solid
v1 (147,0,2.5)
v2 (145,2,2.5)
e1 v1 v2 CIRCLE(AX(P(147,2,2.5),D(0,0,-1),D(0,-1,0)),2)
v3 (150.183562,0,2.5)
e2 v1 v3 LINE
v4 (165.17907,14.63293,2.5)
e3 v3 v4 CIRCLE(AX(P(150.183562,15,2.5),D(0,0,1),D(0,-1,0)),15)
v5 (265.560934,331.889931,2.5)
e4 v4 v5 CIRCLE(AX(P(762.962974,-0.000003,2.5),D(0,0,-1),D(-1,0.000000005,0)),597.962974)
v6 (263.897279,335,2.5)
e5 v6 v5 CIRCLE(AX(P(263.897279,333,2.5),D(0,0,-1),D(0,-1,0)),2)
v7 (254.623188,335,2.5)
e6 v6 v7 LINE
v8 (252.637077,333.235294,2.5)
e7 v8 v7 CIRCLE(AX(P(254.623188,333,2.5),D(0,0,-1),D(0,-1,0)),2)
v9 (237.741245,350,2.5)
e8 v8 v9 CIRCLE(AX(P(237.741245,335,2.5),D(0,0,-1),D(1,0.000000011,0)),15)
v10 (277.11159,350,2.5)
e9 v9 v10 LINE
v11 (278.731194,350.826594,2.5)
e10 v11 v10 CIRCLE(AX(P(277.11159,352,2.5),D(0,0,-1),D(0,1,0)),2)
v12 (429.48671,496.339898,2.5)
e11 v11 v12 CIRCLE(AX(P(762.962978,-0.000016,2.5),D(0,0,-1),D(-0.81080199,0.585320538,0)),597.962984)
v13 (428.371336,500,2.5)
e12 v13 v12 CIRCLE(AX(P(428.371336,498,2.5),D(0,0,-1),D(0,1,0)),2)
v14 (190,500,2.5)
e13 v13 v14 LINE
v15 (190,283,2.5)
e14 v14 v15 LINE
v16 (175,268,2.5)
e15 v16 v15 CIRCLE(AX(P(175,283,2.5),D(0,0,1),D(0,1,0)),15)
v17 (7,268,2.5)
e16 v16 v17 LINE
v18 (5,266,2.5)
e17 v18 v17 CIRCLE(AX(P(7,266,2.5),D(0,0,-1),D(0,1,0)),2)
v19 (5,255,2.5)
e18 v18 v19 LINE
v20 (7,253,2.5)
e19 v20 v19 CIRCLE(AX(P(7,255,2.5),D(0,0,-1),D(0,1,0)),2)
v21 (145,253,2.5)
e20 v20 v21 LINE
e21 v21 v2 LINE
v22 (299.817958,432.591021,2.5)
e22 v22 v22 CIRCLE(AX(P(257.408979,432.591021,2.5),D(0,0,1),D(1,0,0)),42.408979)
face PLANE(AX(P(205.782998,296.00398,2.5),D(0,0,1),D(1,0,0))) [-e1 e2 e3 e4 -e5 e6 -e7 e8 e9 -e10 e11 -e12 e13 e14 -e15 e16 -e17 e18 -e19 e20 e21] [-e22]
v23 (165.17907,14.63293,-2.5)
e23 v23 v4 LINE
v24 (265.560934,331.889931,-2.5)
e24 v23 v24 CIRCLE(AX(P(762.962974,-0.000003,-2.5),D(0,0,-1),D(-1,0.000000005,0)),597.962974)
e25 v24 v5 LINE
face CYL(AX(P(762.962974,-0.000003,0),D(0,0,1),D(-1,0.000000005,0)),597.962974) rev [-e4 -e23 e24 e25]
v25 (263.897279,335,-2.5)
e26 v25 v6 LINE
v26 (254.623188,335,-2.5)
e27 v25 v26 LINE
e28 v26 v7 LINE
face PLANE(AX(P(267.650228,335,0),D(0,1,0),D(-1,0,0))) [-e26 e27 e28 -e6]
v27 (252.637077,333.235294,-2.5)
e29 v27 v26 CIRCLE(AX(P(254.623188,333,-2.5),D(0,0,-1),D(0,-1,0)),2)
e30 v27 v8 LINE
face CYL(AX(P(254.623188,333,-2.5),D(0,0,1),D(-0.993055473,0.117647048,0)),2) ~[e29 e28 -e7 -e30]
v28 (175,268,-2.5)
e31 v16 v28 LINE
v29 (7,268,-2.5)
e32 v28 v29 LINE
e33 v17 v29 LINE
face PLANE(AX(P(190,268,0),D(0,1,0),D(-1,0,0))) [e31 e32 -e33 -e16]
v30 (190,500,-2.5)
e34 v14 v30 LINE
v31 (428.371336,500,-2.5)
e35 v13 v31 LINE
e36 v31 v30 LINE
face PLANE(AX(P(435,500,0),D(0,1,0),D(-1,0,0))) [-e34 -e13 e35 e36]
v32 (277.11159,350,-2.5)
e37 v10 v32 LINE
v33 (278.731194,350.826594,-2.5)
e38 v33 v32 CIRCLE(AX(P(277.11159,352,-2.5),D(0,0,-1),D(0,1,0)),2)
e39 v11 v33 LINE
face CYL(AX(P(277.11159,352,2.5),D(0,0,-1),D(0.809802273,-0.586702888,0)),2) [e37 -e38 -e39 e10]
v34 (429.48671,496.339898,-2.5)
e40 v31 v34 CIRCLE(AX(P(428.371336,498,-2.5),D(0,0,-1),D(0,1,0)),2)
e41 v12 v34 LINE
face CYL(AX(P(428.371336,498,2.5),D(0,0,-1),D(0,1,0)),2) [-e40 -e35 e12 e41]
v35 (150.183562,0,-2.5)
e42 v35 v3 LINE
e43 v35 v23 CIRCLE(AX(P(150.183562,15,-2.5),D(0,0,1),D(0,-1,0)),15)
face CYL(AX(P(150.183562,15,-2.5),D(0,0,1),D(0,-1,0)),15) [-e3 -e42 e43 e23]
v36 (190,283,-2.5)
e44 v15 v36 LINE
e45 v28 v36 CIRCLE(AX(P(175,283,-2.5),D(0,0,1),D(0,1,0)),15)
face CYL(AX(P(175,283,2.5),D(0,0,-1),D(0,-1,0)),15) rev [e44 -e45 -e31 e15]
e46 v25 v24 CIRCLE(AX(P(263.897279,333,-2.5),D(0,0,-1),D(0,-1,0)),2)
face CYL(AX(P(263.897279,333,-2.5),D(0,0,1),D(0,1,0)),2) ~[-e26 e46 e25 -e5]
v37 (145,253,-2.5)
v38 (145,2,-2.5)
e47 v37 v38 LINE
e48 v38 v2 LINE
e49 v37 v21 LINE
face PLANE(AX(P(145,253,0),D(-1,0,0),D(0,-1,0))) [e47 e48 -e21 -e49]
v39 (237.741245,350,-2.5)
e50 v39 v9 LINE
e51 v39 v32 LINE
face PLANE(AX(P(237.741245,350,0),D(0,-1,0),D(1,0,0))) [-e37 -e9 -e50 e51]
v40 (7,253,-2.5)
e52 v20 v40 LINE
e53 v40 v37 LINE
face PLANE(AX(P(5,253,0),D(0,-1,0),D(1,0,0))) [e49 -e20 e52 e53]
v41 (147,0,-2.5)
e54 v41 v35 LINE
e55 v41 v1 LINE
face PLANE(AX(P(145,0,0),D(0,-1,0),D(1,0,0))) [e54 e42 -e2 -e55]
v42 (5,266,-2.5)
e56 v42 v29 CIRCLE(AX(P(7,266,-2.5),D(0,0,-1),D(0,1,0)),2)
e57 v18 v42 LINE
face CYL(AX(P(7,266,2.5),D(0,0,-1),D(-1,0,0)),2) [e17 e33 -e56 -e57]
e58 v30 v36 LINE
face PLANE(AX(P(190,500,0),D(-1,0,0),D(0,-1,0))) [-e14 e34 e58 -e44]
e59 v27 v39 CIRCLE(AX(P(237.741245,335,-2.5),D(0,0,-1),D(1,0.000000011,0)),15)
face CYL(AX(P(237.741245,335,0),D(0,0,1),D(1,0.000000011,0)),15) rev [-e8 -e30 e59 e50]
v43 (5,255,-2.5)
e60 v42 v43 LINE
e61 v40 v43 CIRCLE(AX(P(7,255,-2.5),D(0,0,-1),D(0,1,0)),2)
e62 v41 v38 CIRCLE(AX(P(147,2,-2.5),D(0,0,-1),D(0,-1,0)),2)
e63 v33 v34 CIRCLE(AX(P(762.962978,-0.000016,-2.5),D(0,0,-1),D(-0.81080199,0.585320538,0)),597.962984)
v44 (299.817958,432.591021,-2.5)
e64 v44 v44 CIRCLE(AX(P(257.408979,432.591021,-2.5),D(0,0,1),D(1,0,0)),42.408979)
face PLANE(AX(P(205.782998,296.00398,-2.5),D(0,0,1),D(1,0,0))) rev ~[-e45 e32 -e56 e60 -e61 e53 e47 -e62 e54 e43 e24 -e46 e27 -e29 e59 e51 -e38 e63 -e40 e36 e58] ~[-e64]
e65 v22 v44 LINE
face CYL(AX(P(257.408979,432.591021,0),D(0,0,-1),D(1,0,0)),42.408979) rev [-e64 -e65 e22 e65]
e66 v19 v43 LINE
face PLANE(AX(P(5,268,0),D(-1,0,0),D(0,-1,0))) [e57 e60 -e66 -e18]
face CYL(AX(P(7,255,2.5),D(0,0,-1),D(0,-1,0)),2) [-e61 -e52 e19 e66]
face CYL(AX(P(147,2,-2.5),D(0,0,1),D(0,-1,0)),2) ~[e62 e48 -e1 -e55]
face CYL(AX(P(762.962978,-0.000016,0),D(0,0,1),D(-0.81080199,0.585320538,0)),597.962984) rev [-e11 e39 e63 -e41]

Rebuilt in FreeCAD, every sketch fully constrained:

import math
import FreeCAD as App
import Part
import Sketcher
from FreeCAD import Vector
Q = App.Units.Quantity


def edges_at(feature, points):
    """Names of the edges that pass closest to the given points."""
    edges = feature.Shape.Edges
    near = lambda p: min(range(len(edges)), key=lambda i: edges[i].distToShape(Part.Vertex(*p))[0])
    return sorted({f"Edge{near(p) + 1}" for p in points})

doc = App.newDocument("Part")
params = doc.addObject("Spreadsheet::Sheet", "Params")
for row, (alias, value) in enumerate([
    ("sketch1_radius", "15 mm"),
    ("sketch1_width", "140 mm"),
    ("sketch1_width2", "20 mm"),
    ("sketch1_width3", "245 mm"),
    ("sketch1_width4", "185 mm"),
    ("pad1_length", "5 mm"),
    ("fillet_radius", "2 mm"),
    ("fillet2_radius", "15 mm"),
], start=1):
    params.set(f"A{row}", alias)
    params.set(f"B{row}", "=" + value)
    params.setAlias(f"B{row}", alias)

body = doc.addObject("PartDesign::Body", "Body")

# Sketch on XY plane
sketch1 = doc.addObject("Sketcher::SketchObject", "Sketch")
body.addObject(sketch1)
sketch1.AttachmentSupport = (doc.XY_Plane, [""])
sketch1.MapMode = "FlatFace"
sketch1.addGeometry([
    Part.LineSegment(Vector(5, 253, 0), Vector(145, 253, 0)),  # 0
    Part.LineSegment(Vector(145, 253, 0), Vector(145, 0, 0)),  # 1
    Part.LineSegment(Vector(145, 0, 0), Vector(165, 0, 0)),  # 2
    Part.ArcOfCircle(Part.Circle(Vector(763, 0, 0), Vector(0, 0, 1), 598), math.radians(146), math.radians(180)),  # 3
    Part.LineSegment(Vector(268, 335, 0), Vector(253, 335, 0)),  # 4
    Part.ArcOfCircle(Part.Circle(Vector(238, 335, 0), Vector(0, 0, 1), 15), math.radians(90), math.radians(360)),  # 5
    Part.LineSegment(Vector(238, 350, 0), Vector(278, 350, 0)),  # 6
    Part.ArcOfCircle(Part.Circle(Vector(763, 0, 0), Vector(0, 0, 1), 598), math.radians(123), math.radians(144)),  # 7
    Part.LineSegment(Vector(435, 500, 0), Vector(190, 500, 0)),  # 8
    Part.LineSegment(Vector(190, 500, 0), Vector(190, 268, 0)),  # 9
    Part.LineSegment(Vector(190, 268, 0), Vector(5, 268, 0)),  # 10
    Part.LineSegment(Vector(5, 268, 0), Vector(5, 253, 0)),  # 11
    Part.Circle(Vector(257, 433, 0), Vector(0, 0, 1), 42),  # 12
], False)
sketch1.addConstraint([
    Sketcher.Constraint("Coincident", 0, 2, 1, 1),
    Sketcher.Constraint("Coincident", 1, 2, 2, 1),
    Sketcher.Constraint("Coincident", 2, 2, 3, 2),
    Sketcher.Constraint("Coincident", 3, 1, 4, 1),
    Sketcher.Constraint("Coincident", 4, 2, 5, 2),
    Sketcher.Constraint("Tangent", 5, 1, 6, 1),
    Sketcher.Constraint("Coincident", 6, 2, 7, 2),
    Sketcher.Constraint("Coincident", 7, 1, 8, 1),
    Sketcher.Constraint("Coincident", 8, 2, 9, 1),
    Sketcher.Constraint("Coincident", 9, 2, 10, 1),
    Sketcher.Constraint("Coincident", 10, 2, 11, 1),
    Sketcher.Constraint("Coincident", 11, 2, 0, 1),
    Sketcher.Constraint("Horizontal", 0),
    Sketcher.Constraint("Vertical", 1),
    Sketcher.Constraint("Horizontal", 2),
    Sketcher.Constraint("Horizontal", 4),
    Sketcher.Constraint("Horizontal", 6),
    Sketcher.Constraint("Horizontal", 8),
    Sketcher.Constraint("Vertical", 9),
    Sketcher.Constraint("Horizontal", 10),
    Sketcher.Constraint("Vertical", 11),
    Sketcher.Constraint("PointOnObject", 1, 2, -1),
    Sketcher.Constraint("Radius", 5, Q("15 mm")),
    Sketcher.Constraint("DistanceX", 0, 1, 0, 2, Q("140 mm")),
    Sketcher.Constraint("DistanceX", 2, 1, 2, 2, Q("20 mm")),
    Sketcher.Constraint("DistanceX", 8, 2, 8, 1, Q("245 mm")),
    Sketcher.Constraint("DistanceX", 10, 2, 10, 1, Q("185 mm")),
    Sketcher.Constraint("DistanceY", 1, 2, 1, 1, Q("253 mm")),
    Sketcher.Constraint("DistanceY", 9, 2, 9, 1, Q("232 mm")),
    Sketcher.Constraint("DistanceY", 11, 2, 11, 1, Q("15 mm")),
    Sketcher.Constraint("DistanceY", -1, 1, 5, 3, Q("335 mm")),
    Sketcher.Constraint("DistanceX", -1, 1, 0, 2, Q("145 mm")),
    Sketcher.Constraint("DistanceY", -1, 1, 4, 2, Q("335 mm")),
    Sketcher.Constraint("Diameter", 12, Q("84.817958 mm")),
    Sketcher.Constraint("Radius", 3, Q("597.962974 mm")),
    Sketcher.Constraint("Radius", 7, Q("597.962984 mm")),
    Sketcher.Constraint("DistanceX", 12, 3, 7, 3, Q("505.553999 mm")),
    Sketcher.Constraint("DistanceX", -1, 1, 6, 2, Q("278.1334 mm")),
    Sketcher.Constraint("DistanceX", 4, 2, 4, 1, Q("14.908983 mm")),
    Sketcher.Constraint("DistanceX", 6, 1, 6, 2, Q("40.392155 mm")),
    Sketcher.Constraint("DistanceY", -1, 1, 12, 3, Q("432.591021 mm")),
])
sketch1.setExpression("Constraints[22]", "Params.sketch1_radius")
sketch1.setExpression("Constraints[23]", "Params.sketch1_width")
sketch1.setExpression("Constraints[24]", "Params.sketch1_width2")
sketch1.setExpression("Constraints[25]", "Params.sketch1_width3")
sketch1.setExpression("Constraints[26]", "Params.sketch1_width4")
pad1 = doc.addObject("PartDesign::Pad", "Pad")
body.addObject(pad1)
pad1.Profile = sketch1
pad1.setExpression("Length", "Params.pad1_length")
pad1.Midplane = True
doc.recompute()

fillet = doc.addObject("PartDesign::Fillet", "Fillet")
body.addObject(fillet)
fillet.Base = (pad1, edges_at(pad1, [
    (435, 500, 0),
    (145, 0, 0),
    (5, 268, 0),
    (5, 253, 0),
    (278.133, 350, 0),
    (267.65, 335, 0),
    (252.741, 335, 0),
]))
fillet.setExpression("Radius", "Params.fillet_radius")
doc.recompute()

fillet2 = doc.addObject("PartDesign::Fillet", "Fillet001")
body.addObject(fillet2)
fillet2.Base = (fillet, edges_at(fillet, [(190, 268, 0), (165, 0, 0)]))
fillet2.setExpression("Radius", "Params.fillet2_radius")

doc.recompute()
